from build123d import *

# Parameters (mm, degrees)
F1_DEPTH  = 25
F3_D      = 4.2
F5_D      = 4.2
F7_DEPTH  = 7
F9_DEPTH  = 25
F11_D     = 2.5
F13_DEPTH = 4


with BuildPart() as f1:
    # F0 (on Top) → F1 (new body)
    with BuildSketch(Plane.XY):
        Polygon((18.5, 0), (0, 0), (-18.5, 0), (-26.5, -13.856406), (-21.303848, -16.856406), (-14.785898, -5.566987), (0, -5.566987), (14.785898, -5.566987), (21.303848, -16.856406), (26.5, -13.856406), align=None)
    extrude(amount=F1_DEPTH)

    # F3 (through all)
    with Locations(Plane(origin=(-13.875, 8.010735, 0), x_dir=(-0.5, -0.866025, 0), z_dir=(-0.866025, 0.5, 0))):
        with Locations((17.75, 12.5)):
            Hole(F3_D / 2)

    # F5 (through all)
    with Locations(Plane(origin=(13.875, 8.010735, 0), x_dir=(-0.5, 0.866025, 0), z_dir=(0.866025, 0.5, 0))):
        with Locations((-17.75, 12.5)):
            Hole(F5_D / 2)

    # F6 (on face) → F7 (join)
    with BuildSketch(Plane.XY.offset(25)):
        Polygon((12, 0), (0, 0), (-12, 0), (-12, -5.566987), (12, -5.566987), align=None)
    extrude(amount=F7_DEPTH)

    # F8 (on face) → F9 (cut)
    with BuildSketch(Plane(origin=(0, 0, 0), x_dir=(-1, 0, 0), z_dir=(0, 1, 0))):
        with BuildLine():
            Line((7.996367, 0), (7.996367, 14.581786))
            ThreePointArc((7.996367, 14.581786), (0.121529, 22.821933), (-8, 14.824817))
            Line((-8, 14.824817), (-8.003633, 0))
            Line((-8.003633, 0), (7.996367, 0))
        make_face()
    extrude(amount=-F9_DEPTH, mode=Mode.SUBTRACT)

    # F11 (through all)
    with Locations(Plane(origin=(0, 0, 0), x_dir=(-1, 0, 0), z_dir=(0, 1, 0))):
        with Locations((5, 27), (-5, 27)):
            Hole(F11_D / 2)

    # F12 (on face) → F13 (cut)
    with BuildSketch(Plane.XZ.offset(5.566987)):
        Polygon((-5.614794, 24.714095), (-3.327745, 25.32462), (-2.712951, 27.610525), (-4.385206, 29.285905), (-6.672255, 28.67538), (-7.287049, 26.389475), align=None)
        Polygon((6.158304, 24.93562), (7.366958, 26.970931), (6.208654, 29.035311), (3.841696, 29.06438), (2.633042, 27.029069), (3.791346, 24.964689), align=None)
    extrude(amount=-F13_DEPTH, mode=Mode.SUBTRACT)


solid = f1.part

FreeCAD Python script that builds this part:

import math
import FreeCAD as App
import Part
import Sketcher
Q = App.Units.Quantity

doc = App.newDocument("Part")
body = doc.addObject("PartDesign::Body", "Body")

sketch1 = body.newObject("Sketcher::SketchObject", "Sketch")
sketch1.AttachmentSupport = (doc.getObject("XY_Plane"), [""])
sketch1.MapMode = "FlatFace"
sketch1.addGeometry([
    Part.LineSegment(App.Vector(18.5, 0, 0), App.Vector(-18.5, 0, 0)),
    Part.LineSegment(App.Vector(-18.5, 0, 0), App.Vector(-26.5, -13.856406, 0)),
    Part.LineSegment(App.Vector(-26.5, -13.856406, 0), App.Vector(-21.303848, -16.856406, 0)),
    Part.LineSegment(App.Vector(-21.303848, -16.856406, 0), App.Vector(-14.785898, -5.566987, 0)),
    Part.LineSegment(App.Vector(-14.785898, -5.566987, 0), App.Vector(14.785898, -5.566987, 0)),
    Part.LineSegment(App.Vector(14.785898, -5.566987, 0), App.Vector(21.303848, -16.856406, 0)),
    Part.LineSegment(App.Vector(21.303848, -16.856406, 0), App.Vector(26.5, -13.856406, 0)),
    Part.LineSegment(App.Vector(26.5, -13.856406, 0), App.Vector(18.5, 0, 0)),
], False)
sketch1.addConstraint([
    Sketcher.Constraint("Coincident", 0, 2, 1, 1),
    Sketcher.Constraint("Coincident", 1, 2, 2, 1),
    Sketcher.Constraint("Coincident", 2, 2, 3, 1),
    Sketcher.Constraint("Coincident", 3, 2, 4, 1),
    Sketcher.Constraint("Coincident", 4, 2, 5, 1),
    Sketcher.Constraint("Coincident", 5, 2, 6, 1),
    Sketcher.Constraint("Coincident", 6, 2, 7, 1),
    Sketcher.Constraint("Coincident", 7, 2, 0, 1),
    Sketcher.Constraint("Horizontal", 0),
    Sketcher.Constraint("Horizontal", 4),
    Sketcher.Constraint("Symmetric", 0, 2, 7, 2, -1, 1),
    Sketcher.Constraint("Symmetric", 2, 2, 5, 2, -2),
    Sketcher.Constraint("Symmetric", 1, 2, 6, 2, -2),
    Sketcher.Constraint("Perpendicular", 1, 2),
    Sketcher.Constraint("Perpendicular", 2, 3),
    Sketcher.Constraint("Perpendicular", 5, 6),
    Sketcher.Constraint("DistanceX", 0, 2, 0, 1, Q("37 mm")),
    Sketcher.Constraint("Angle", 1, Q("-120.000001 deg")),
    Sketcher.Constraint("Distance", 1, Q("16 mm")),
    Sketcher.Constraint("Distance", 2, Q("6 mm")),
    Sketcher.Constraint("Distance", 3, Q("13.035899 mm")),
])
pad1 = body.newObject("PartDesign::Pad", "Pad")
pad1.Profile = sketch1
pad1.Length = 25

sketch2 = body.newObject("Sketcher::SketchObject", "Sketch001")
sketch2.Placement = App.Placement(App.Vector(-13.874998, 8.010738, 0), App.Rotation(App.Vector(-0.500000175, -0.866025303, 0), App.Vector(0, 0, 1), App.Vector(-0.866025303, 0.500000175, 0), "ZXY"))
sketch2.addGeometry(Part.Circle(App.Vector(17.750003, 12.5, 0), App.Vector(0, 0, 1), 2.1), False)
sketch2.addConstraint([
    Sketcher.Constraint("Diameter", 0, Q("4.2 mm")),
    Sketcher.Constraint("DistanceY", -1, 1, 0, 3, Q("12.5 mm")),
    Sketcher.Constraint("DistanceX", -1, 1, 0, 3, Q("17.750003 mm")),
])
doc.recompute()
hole = body.newObject("PartDesign::Hole", "Hole")
hole.Profile = sketch2
hole.ThreadType = "None"
hole.Diameter = 4.2
hole.DepthType = "ThroughAll"

sketch3 = body.newObject("Sketcher::SketchObject", "Sketch002")
sketch3.Placement = App.Placement(App.Vector(13.874998, 8.010738, 0), App.Rotation(App.Vector(-0.500000175, 0.866025303, 0), App.Vector(0, 0, 1), App.Vector(0.866025303, 0.500000175, 0), "ZXY"))
sketch3.addGeometry(Part.Circle(App.Vector(-17.750003, 12.5, 0), App.Vector(0, 0, 1), 2.1), False)
sketch3.addConstraint([
    Sketcher.Constraint("Diameter", 0, Q("4.2 mm")),
    Sketcher.Constraint("DistanceY", -1, 1, 0, 3, Q("12.5 mm")),
    Sketcher.Constraint("DistanceX", 0, 3, -1, 1, Q("17.750003 mm")),
])
doc.recompute()
hole2 = body.newObject("PartDesign::Hole", "Hole001")
hole2.Profile = sketch3
hole2.ThreadType = "None"
hole2.Diameter = 4.2
hole2.DepthType = "ThroughAll"

sketch4 = body.newObject("Sketcher::SketchObject", "Sketch003")
sketch4.AttachmentSupport = (doc.getObject("XY_Plane"), [""])
sketch4.MapMode = "FlatFace"
sketch4.AttachmentOffset = App.Placement(App.Vector(0, 0, 25), App.Rotation())
sketch4.addGeometry([
    Part.LineSegment(App.Vector(12, 0, 0), App.Vector(-12, 0, 0)),
    Part.LineSegment(App.Vector(-12, 0, 0), App.Vector(-12, -5.566987, 0)),
    Part.LineSegment(App.Vector(-12, -5.566987, 0), App.Vector(12, -5.566987, 0)),
    Part.LineSegment(App.Vector(12, -5.566987, 0), App.Vector(12, 0, 0)),
], False)
sketch4.addConstraint([
    Sketcher.Constraint("Coincident", 0, 2, 1, 1),
    Sketcher.Constraint("Coincident", 1, 2, 2, 1),
    Sketcher.Constraint("Coincident", 2, 2, 3, 1),
    Sketcher.Constraint("Coincident", 3, 2, 0, 1),
    Sketcher.Constraint("Horizontal", 0),
    Sketcher.Constraint("Vertical", 1),
    Sketcher.Constraint("Horizontal", 2),
    Sketcher.Constraint("Vertical", 3),
    Sketcher.Constraint("Symmetric", 0, 2, 3, 2, -1, 1),
    Sketcher.Constraint("DistanceX", 0, 2, 0, 1, Q("24 mm")),
    Sketcher.Constraint("DistanceY", 1, 2, 1, 1, Q("5.566987 mm")),
])
pad2 = body.newObject("PartDesign::Pad", "Pad001")
pad2.Profile = sketch4
pad2.Length = 7

sketch5 = body.newObject("Sketcher::SketchObject", "Sketch004")
sketch5.AttachmentSupport = (doc.getObject("XZ_Plane"), [""])
sketch5.MapMode = "FlatFace"
sketch5.addGeometry([
    Part.LineSegment(App.Vector(-7.996367, 0, 0), App.Vector(-7.996367, 14.581786, 0)),
    Part.ArcOfCircle(Part.Circle(App.Vector(0, 14.822856, 0), App.Vector(0, 0, 1), 8), math.radians(0.014044), math.radians(181.726798)),
    Part.LineSegment(App.Vector(8, 14.824817, 0), App.Vector(8.003633, 0, 0)),
    Part.LineSegment(App.Vector(8.003633, 0, 0), App.Vector(-7.996367, 0, 0)),
], False)
sketch5.addConstraint([
    Sketcher.Constraint("Coincident", 0, 2, 1, 2),
    Sketcher.Constraint("Tangent", 1, 1, 2, 1),
    Sketcher.Constraint("Coincident", 2, 2, 3, 1),
    Sketcher.Constraint("Coincident", 3, 2, 0, 1),
    Sketcher.Constraint("Vertical", 0),
    Sketcher.Constraint("Horizontal", 3),
    Sketcher.Constraint("PointOnObject", 1, 3, -2),
    Sketcher.Constraint("PointOnObject", 2, 2, -1),
    Sketcher.Constraint("Radius", 1, Q("8 mm")),
    Sketcher.Constraint("DistanceX", 3, 2, 3, 1, Q("16 mm")),
    Sketcher.Constraint("DistanceY", 0, 1, 0, 2, Q("14.581786 mm")),
    Sketcher.Constraint("DistanceY", 0, 2, 1, 3, Q("0.24107 mm")),
])
pocket1 = body.newObject("PartDesign::Pocket", "Pocket")
pocket1.Profile = sketch5
pocket1.Length = 25
pocket1.Reversed = True

sketch6 = body.newObject("Sketcher::SketchObject", "Sketch005")
sketch6.AttachmentSupport = (doc.getObject("XZ_Plane"), [""])
sketch6.MapMode = "FlatFace"
sketch6.addGeometry([
    Part.Circle(App.Vector(-5, 27, 0), App.Vector(0, 0, 1), 1.25),
    Part.Circle(App.Vector(5, 27, 0), App.Vector(0, 0, 1), 1.25),
], False)
sketch6.addConstraint([
    Sketcher.Constraint("Equal", 0, 1),
    Sketcher.Constraint("Symmetric", 0, 3, 1, 3, -2),
    Sketcher.Constraint("Diameter", 0, Q("2.5 mm")),
    Sketcher.Constraint("DistanceX", 0, 3, -1, 1, Q("5 mm")),
    Sketcher.Constraint("DistanceY", -1, 1, 0, 3, Q("27 mm")),
])
doc.recompute()
hole3 = body.newObject("PartDesign::Hole", "Hole002")
hole3.Profile = sketch6
hole3.ThreadType = "None"
hole3.Diameter = 2.5
hole3.DepthType = "ThroughAll"
hole3.Reversed = True

sketch7 = body.newObject("Sketcher::SketchObject", "Sketch006")
sketch7.AttachmentSupport = (doc.getObject("XZ_Plane"), [""])
sketch7.MapMode = "FlatFace"
sketch7.AttachmentOffset = App.Placement(App.Vector(0, 0, 5.566987), App.Rotation())
sketch7.addGeometry([
    Part.LineSegment(App.Vector(-5.614794, 24.714095, 0), App.Vector(-3.327745, 25.32462, 0)),
    Part.LineSegment(App.Vector(-3.327745, 25.32462, 0), App.Vector(-2.712951, 27.610525, 0)),
    Part.LineSegment(App.Vector(-2.712951, 27.610525, 0), App.Vector(-4.385206, 29.285905, 0)),
    Part.LineSegment(App.Vector(-4.385206, 29.285905, 0), App.Vector(-6.672255, 28.67538, 0)),
    Part.LineSegment(App.Vector(-6.672255, 28.67538, 0), App.Vector(-7.287049, 26.389475, 0)),
    Part.LineSegment(App.Vector(-7.287049, 26.389475, 0), App.Vector(-5.614794, 24.714095, 0)),
    Part.LineSegment(App.Vector(6.158304, 24.93562, 0), App.Vector(7.366958, 26.970931, 0)),
    Part.LineSegment(App.Vector(7.366958, 26.970931, 0), App.Vector(6.208654, 29.035311, 0)),
    Part.LineSegment(App.Vector(6.208654, 29.035311, 0), App.Vector(3.841696, 29.06438, 0)),
    Part.LineSegment(App.Vector(3.841696, 29.06438, 0), App.Vector(2.633042, 27.029069, 0)),
    Part.LineSegment(App.Vector(2.633042, 27.029069, 0), App.Vector(3.791346, 24.964689, 0)),
    Part.LineSegment(App.Vector(3.791346, 24.964689, 0), App.Vector(6.158304, 24.93562, 0)),
], False)
sketch7.addConstraint([
    Sketcher.Constraint("Coincident", 0, 2, 1, 1),
    Sketcher.Constraint("Coincident", 1, 2, 2, 1),
    Sketcher.Constraint("Coincident", 2, 2, 3, 1),
    Sketcher.Constraint("Coincident", 3, 2, 4, 1),
    Sketcher.Constraint("Coincident", 4, 2, 5, 1),
    Sketcher.Constraint("Coincident", 5, 2, 0, 1),
    Sketcher.Constraint("Coincident", 6, 2, 7, 1),
    Sketcher.Constraint("Coincident", 7, 2, 8, 1),
    Sketcher.Constraint("Coincident", 8, 2, 9, 1),
    Sketcher.Constraint("Coincident", 9, 2, 10, 1),
    Sketcher.Constraint("Coincident", 10, 2, 11, 1),
    Sketcher.Constraint("Coincident", 11, 2, 6, 1),
    Sketcher.Constraint("Parallel", 0, 3),
    Sketcher.Constraint("Parallel", 1, 4),
    Sketcher.Constraint("Parallel", 2, 5),
    Sketcher.Constraint("Parallel", 6, 9),
    Sketcher.Constraint("Parallel", 7, 10),
    Sketcher.Constraint("Parallel", 8, 11),
    Sketcher.Constraint("Equal", 0, 1),
    Sketcher.Constraint("Equal", 1, 2),
    Sketcher.Constraint("Equal", 2, 3),
    Sketcher.Constraint("Equal", 5, 6),
    Sketcher.Constraint("Equal", 6, 7),
    Sketcher.Constraint("Equal", 7, 8),
    Sketcher.Constraint("Equal", 8, 9),
    Sketcher.Constraint("DistanceX", 0, 2, 7, 2, Q("9.536399 mm")),
    Sketcher.Constraint("DistanceY", -1, 1, 0, 2, Q("25.32462 mm")),
    Sketcher.Constraint("DistanceX", 1, 2, -1, 1, Q("2.712951 mm")),
    Sketcher.Constraint("DistanceY", -1, 1, 3, 2, Q("28.67538 mm")),
    Sketcher.Constraint("DistanceX", 4, 2, -1, 1, Q("7.287049 mm")),
    Sketcher.Constraint("DistanceX", -1, 1, 6, 2, Q("7.366958 mm")),
    Sketcher.Constraint("DistanceY", -1, 1, 6, 2, Q("26.970931 mm")),
    Sketcher.Constraint("DistanceY", -1, 1, 7, 2, Q("29.035311 mm")),
    Sketcher.Constraint("DistanceY", -1, 1, 8, 2, Q("29.06438 mm")),
    Sketcher.Constraint("DistanceY", -1, 1, 9, 2, Q("27.029069 mm")),
    Sketcher.Constraint("DistanceY", 1, 2, 2, 2, Q("1.67538 mm")),
])
pocket2 = body.newObject("PartDesign::Pocket", "Pocket001")
pocket2.Profile = sketch7
pocket2.Length = 4

doc.recompute()
